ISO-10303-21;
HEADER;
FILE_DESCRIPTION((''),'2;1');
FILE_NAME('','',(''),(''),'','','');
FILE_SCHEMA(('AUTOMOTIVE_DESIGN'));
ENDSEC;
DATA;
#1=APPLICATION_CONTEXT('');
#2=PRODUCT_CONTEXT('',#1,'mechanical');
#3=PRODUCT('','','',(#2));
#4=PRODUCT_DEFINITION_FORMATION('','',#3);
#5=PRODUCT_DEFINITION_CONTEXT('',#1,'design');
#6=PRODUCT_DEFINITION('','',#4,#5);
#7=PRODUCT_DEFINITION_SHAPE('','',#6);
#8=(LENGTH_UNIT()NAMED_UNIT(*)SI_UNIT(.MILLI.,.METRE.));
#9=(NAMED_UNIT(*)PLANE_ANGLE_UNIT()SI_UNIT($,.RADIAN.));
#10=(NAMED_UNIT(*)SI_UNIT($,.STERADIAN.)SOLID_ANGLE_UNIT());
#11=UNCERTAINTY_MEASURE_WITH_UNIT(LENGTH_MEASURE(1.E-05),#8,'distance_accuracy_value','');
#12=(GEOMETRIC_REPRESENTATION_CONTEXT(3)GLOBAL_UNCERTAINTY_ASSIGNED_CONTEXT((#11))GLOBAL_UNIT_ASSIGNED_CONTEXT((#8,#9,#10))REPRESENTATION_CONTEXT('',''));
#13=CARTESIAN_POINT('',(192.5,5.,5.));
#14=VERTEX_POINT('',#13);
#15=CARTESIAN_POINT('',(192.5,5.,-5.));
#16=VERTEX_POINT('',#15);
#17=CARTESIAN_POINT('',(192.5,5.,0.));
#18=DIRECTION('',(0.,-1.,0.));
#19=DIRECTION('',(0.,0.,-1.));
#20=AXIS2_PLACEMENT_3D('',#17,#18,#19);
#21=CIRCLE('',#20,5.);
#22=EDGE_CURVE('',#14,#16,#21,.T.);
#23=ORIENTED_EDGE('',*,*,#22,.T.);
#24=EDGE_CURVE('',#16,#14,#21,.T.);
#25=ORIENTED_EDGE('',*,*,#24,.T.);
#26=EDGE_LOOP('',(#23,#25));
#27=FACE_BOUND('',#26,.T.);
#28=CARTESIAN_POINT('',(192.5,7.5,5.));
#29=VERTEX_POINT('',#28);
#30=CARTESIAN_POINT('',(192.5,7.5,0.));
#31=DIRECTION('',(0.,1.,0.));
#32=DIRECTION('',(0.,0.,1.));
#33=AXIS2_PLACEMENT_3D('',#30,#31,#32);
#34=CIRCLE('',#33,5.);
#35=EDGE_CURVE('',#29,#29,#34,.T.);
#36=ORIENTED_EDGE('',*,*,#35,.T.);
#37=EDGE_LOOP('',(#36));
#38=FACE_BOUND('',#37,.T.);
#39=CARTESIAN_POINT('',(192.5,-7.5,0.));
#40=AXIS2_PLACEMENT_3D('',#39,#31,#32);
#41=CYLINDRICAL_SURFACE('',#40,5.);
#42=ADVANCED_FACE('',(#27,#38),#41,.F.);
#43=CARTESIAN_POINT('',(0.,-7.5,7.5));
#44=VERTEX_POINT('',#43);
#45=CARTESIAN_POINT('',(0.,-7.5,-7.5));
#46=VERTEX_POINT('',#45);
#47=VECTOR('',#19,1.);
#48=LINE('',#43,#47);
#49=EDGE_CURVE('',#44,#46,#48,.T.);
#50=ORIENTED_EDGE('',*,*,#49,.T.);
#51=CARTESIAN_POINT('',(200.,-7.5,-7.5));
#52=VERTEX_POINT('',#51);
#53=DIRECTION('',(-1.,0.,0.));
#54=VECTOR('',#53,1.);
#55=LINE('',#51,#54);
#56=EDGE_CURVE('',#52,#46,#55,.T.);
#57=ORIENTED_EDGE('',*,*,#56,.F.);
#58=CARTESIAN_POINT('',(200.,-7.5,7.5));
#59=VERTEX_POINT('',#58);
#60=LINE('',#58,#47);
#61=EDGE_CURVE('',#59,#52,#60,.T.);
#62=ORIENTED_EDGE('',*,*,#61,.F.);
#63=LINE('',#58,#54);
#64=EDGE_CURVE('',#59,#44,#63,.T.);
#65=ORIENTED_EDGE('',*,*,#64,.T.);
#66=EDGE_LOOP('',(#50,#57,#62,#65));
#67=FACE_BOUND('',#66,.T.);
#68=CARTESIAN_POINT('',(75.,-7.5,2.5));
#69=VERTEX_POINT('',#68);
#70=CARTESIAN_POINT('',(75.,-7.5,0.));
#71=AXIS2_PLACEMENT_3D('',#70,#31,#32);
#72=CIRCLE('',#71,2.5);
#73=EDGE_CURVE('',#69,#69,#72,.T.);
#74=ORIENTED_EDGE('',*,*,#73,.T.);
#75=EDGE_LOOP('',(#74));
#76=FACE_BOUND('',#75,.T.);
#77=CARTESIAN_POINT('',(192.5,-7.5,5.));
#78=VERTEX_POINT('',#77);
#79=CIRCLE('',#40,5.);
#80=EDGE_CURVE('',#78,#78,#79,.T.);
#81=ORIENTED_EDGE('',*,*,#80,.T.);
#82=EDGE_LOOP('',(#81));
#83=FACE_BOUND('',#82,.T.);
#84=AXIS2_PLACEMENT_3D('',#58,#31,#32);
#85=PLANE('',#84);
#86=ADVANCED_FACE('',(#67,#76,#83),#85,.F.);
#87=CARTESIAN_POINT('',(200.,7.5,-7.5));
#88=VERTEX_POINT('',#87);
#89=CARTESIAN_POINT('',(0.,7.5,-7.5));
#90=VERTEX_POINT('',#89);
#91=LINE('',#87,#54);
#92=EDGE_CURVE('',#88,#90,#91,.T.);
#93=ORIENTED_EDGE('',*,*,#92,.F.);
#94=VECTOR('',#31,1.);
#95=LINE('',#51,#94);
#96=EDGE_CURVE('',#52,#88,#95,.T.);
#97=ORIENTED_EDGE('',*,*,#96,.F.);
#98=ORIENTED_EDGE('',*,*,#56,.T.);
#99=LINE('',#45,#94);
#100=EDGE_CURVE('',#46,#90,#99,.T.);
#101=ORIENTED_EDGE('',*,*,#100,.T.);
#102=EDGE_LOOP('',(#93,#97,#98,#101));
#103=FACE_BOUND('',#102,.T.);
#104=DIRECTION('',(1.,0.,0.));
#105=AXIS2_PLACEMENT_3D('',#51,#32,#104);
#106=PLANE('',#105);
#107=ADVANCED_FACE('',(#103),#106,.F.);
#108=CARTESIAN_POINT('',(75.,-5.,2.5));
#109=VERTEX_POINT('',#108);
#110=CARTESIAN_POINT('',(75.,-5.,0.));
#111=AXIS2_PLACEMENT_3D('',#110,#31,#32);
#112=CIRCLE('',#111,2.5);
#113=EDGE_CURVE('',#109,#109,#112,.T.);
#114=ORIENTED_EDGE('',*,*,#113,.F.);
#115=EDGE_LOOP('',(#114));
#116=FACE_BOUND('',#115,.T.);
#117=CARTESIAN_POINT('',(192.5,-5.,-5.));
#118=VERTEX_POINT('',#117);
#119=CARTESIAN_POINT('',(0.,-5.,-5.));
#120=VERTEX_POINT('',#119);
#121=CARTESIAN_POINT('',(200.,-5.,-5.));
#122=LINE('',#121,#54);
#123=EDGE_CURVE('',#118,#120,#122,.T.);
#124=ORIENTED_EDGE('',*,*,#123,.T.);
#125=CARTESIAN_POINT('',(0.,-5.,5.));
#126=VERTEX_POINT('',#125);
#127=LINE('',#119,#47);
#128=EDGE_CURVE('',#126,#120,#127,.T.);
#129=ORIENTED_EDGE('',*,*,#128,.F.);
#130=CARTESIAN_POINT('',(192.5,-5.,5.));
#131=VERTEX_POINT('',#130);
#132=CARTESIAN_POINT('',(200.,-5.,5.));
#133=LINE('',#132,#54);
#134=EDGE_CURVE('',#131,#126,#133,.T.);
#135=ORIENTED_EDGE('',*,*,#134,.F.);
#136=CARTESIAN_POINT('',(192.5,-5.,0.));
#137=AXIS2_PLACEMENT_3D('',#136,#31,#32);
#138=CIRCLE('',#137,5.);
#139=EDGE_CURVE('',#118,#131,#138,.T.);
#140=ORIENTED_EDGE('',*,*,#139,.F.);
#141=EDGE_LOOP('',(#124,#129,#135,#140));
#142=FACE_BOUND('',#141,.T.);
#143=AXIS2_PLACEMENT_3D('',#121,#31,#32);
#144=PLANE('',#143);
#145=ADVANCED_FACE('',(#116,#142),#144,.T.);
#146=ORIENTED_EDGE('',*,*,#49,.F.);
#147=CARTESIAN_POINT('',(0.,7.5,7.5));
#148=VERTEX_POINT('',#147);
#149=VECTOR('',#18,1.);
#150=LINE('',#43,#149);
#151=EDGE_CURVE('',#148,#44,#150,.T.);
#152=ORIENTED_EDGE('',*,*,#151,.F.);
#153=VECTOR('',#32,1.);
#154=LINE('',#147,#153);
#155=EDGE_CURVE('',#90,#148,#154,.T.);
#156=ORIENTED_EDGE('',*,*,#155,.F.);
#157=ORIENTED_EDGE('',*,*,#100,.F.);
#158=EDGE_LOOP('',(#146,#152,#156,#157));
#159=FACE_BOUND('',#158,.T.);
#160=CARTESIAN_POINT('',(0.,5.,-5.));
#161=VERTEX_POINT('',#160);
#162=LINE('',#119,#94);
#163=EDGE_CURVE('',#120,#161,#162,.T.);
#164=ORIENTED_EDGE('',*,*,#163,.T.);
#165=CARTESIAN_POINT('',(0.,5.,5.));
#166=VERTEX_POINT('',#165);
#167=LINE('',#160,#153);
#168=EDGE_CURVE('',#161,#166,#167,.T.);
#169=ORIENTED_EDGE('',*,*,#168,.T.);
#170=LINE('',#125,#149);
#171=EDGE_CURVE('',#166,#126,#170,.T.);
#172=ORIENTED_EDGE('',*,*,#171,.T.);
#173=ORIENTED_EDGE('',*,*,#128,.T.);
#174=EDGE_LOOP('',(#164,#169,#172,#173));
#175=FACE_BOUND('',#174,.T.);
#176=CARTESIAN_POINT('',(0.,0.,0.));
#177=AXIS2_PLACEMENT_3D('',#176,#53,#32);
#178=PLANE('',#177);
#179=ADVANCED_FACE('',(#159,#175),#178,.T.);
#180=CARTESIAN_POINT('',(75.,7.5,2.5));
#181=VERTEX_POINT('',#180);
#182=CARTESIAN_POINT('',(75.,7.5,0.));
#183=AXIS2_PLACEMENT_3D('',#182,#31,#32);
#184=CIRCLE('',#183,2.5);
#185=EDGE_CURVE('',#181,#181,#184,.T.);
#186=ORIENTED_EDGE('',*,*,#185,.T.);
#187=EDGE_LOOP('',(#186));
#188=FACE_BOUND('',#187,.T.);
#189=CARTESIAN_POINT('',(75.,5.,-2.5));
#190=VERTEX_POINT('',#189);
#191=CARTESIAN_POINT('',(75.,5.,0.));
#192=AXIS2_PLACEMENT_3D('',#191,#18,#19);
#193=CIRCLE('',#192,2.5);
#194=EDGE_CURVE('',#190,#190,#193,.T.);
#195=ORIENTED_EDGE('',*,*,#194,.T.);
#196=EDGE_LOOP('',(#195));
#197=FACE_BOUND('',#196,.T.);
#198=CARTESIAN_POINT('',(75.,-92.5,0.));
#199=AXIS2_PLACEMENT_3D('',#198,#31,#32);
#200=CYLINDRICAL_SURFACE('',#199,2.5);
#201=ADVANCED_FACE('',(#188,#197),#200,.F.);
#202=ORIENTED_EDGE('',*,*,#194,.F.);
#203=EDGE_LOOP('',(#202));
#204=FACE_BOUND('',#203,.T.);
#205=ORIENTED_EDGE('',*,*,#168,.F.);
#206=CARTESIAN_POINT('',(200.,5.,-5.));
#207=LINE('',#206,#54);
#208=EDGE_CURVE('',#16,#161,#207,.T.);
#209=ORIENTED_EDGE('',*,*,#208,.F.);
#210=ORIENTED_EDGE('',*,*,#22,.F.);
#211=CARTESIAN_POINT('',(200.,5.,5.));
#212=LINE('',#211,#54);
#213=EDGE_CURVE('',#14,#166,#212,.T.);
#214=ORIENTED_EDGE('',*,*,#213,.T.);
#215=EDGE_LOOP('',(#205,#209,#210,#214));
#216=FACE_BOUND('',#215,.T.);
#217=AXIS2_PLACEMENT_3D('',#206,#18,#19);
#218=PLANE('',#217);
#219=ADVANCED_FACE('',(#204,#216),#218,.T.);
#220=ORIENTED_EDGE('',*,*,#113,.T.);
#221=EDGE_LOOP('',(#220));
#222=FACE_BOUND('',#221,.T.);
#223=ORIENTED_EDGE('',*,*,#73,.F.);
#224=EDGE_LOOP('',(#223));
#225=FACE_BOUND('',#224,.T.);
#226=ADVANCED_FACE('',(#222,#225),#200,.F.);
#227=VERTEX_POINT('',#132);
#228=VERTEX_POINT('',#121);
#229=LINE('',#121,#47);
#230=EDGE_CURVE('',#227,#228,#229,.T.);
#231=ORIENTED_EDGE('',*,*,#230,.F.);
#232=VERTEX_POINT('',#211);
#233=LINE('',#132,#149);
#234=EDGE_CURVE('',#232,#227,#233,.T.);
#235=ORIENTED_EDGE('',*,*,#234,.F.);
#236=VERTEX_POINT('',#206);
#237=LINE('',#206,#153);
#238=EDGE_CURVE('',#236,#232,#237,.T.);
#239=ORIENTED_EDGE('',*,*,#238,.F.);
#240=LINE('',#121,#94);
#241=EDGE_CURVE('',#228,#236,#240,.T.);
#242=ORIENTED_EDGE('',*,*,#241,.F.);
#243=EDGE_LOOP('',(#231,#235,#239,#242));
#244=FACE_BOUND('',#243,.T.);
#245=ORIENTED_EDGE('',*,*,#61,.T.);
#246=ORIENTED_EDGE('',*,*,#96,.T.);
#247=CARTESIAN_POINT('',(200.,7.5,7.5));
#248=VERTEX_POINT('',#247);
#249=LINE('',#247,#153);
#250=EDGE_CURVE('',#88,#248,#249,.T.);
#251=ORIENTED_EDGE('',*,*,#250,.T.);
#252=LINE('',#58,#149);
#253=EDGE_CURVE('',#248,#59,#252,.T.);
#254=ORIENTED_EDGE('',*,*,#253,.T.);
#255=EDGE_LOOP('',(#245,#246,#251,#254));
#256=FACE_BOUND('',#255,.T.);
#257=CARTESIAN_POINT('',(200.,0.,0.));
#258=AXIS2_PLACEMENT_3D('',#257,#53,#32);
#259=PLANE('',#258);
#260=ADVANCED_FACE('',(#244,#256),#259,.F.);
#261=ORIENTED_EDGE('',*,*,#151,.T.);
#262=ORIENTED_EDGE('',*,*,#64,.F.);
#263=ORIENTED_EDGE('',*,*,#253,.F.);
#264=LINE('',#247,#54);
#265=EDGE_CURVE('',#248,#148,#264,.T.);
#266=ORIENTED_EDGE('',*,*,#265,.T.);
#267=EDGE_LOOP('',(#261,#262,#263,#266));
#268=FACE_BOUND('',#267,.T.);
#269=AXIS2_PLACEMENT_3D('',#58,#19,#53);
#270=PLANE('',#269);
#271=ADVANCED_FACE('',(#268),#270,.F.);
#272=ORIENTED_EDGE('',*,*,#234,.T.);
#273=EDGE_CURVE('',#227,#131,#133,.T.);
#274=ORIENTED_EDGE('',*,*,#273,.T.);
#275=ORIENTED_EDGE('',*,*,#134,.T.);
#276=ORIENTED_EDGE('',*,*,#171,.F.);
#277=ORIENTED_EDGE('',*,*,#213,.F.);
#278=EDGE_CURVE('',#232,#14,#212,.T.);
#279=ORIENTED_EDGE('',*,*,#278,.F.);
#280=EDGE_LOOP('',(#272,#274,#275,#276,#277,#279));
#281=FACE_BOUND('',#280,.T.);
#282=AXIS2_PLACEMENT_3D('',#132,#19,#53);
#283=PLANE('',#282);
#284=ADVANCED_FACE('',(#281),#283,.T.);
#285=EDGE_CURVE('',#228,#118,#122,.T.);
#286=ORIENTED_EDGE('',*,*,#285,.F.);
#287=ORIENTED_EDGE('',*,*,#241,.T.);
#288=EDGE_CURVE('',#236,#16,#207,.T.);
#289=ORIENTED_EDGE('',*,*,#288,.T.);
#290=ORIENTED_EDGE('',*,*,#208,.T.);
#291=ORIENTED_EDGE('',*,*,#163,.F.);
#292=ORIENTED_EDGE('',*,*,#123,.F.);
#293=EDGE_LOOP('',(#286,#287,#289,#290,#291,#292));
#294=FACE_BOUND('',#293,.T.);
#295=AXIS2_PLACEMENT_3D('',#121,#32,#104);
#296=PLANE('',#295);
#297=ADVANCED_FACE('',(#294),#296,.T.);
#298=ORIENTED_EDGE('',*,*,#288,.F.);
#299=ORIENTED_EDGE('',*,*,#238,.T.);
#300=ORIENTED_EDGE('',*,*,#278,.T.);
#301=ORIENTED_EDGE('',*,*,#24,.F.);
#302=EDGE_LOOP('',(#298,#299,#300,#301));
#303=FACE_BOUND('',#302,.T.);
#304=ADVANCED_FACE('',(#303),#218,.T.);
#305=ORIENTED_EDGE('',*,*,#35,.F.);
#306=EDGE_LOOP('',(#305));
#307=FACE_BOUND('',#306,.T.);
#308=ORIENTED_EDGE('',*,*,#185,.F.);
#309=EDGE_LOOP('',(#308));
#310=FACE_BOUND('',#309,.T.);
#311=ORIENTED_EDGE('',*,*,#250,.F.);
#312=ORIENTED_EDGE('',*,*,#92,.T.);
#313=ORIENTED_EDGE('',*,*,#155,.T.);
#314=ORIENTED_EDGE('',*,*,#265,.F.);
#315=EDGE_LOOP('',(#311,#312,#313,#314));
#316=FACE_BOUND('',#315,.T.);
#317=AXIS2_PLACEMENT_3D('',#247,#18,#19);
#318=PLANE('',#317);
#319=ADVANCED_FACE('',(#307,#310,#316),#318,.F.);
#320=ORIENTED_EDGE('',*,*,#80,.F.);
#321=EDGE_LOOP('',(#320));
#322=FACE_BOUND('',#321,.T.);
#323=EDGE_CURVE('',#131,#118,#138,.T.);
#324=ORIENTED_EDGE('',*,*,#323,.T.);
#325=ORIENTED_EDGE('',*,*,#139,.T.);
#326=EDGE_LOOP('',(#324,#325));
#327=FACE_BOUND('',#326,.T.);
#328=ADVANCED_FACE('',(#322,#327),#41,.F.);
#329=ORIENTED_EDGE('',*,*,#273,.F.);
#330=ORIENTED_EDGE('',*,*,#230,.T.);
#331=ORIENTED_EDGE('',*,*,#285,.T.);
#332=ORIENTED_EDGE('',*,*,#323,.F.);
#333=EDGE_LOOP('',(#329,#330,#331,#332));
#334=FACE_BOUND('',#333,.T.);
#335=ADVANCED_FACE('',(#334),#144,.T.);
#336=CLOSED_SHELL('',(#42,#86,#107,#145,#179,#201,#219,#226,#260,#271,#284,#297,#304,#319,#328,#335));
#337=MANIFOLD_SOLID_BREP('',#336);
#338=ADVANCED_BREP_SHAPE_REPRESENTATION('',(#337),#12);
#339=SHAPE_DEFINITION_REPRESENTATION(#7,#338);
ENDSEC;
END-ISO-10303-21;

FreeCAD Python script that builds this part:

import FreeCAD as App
import Part
import Sketcher


def add_polygon(sketch, points):
    """Adds a closed chain of lines whose ends are joined by coincident constraints."""
    first, n = sketch.GeometryCount, len(points)
    for a, b in zip(points, points[1:] + points[:1]):
        sketch.addGeometry(Part.LineSegment(App.Vector(*a, 0), App.Vector(*b, 0)), False)
    for i in range(n):
        sketch.addConstraint(Sketcher.Constraint("Coincident", first + i, 2, first + (i + 1) % n, 1))

doc = App.newDocument("Part")
body = doc.addObject("PartDesign::Body", "Body")

sketch1 = body.newObject("Sketcher::SketchObject", "Sketch")
sketch1.AttachmentSupport = (doc.getObject("YZ_Plane"), [""])
sketch1.MapMode = "FlatFace"
add_polygon(sketch1, [(8, 8), (-8, 8), (-8, -8), (8, -8)])
add_polygon(sketch1, [(-5, -5), (-5, 5), (5, 5), (5, -5)])
sketch1.addConstraint([
    Sketcher.Constraint("Horizontal", 0),
    Sketcher.Constraint("Vertical", 1),
    Sketcher.Constraint("Horizontal", 2),
    Sketcher.Constraint("Vertical", 3),
    Sketcher.Constraint("Vertical", 4),
    Sketcher.Constraint("Horizontal", 5),
    Sketcher.Constraint("Vertical", 6),
    Sketcher.Constraint("Horizontal", 7),
    Sketcher.Constraint("Symmetric", 0, 2, 2, 2, -1, 1),
    Sketcher.Constraint("Symmetric", 4, 2, 6, 2, -1, 1),
    Sketcher.Constraint("Equal", 2, 1),
    Sketcher.Constraint("Equal", 7, 4),
    Sketcher.Constraint("DistanceX", 0, 2, 0, 1, 15.0),
    Sketcher.Constraint("DistanceX", 5, 1, 5, 2, 10.0),
])
pad1 = body.newObject("PartDesign::Pad", "Pad")
pad1.Profile = sketch1
pad1.Length = 200

sketch2 = body.newObject("Sketcher::SketchObject", "Sketch001")
sketch2.AttachmentSupport = (doc.getObject("XZ_Plane"), [""])
sketch2.MapMode = "FlatFace"
sketch2.AttachmentOffset = App.Placement(App.Vector(0, 0, -7.5), App.Rotation())
sketch2.addGeometry(Part.Circle(App.Vector(192, 0, 0), App.Vector(0, 0, 1), 5), False)
sketch2.addConstraint([
    Sketcher.Constraint("PointOnObject", 0, 3, -1),
    Sketcher.Constraint("Diameter", 0, 10.0),
    Sketcher.Constraint("DistanceX", -1, 1, 0, 3, 192.5),
])
pocket1 = body.newObject("PartDesign::Pocket", "Pocket")
pocket1.Profile = sketch2
pocket1.Type = "ThroughAll"
pocket1.Reversed = True

sketch3 = body.newObject("Sketcher::SketchObject", "Sketch002")
sketch3.AttachmentSupport = (doc.getObject("XZ_Plane"), [""])
sketch3.MapMode = "FlatFace"
sketch3.AttachmentOffset = App.Placement(App.Vector(0, 0, -7.5), App.Rotation())
sketch3.addGeometry(Part.Circle(App.Vector(75, 0, 0), App.Vector(0, 0, 1), 2.5), False)
sketch3.addConstraint([
    Sketcher.Constraint("PointOnObject", 0, 3, -1),
    Sketcher.Constraint("Diameter", 0, 5.0),
    Sketcher.Constraint("DistanceX", -1, 1, 0, 3, 75.0),
])
pocket2 = body.newObject("PartDesign::Pocket", "Pocket001")
pocket2.Profile = sketch3
pocket2.Length = 100
pocket2.Reversed = True

doc.recompute()
